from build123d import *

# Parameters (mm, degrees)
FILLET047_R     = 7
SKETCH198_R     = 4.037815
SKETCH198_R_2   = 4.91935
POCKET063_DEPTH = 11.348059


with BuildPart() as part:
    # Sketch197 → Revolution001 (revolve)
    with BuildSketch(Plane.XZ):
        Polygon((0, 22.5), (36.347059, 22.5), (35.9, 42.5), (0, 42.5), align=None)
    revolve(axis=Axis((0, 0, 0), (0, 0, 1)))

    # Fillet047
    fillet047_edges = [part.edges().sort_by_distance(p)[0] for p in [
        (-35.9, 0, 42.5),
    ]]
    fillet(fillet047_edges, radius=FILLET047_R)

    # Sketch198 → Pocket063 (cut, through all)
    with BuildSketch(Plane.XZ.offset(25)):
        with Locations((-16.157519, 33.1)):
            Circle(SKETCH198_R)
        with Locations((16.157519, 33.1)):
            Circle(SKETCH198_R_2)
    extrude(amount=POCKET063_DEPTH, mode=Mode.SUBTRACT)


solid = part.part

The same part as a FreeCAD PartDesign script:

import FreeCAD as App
import Part
import Sketcher
from FreeCAD import Vector
Q = App.Units.Quantity


def edges_at(feature, points):
    """Names of the edges that pass closest to the given points."""
    edges = feature.Shape.Edges
    near = lambda p: min(range(len(edges)), key=lambda i: edges[i].distToShape(Part.Vertex(*p))[0])
    return sorted({f"Edge{near(p) + 1}" for p in points})

doc = App.newDocument("Part")
body = doc.addObject("PartDesign::Body", "Body")

sketch1 = body.newObject("Sketcher::SketchObject", "Sketch")
sketch1.AttachmentSupport = (doc.getObject("XZ_Plane"), [""])
sketch1.MapMode = "FlatFace"
sketch1.addGeometry([
    Part.LineSegment(Vector(0, 22, 0), Vector(36, 22, 0)),
    Part.LineSegment(Vector(36, 22, 0), Vector(36, 42, 0)),
    Part.LineSegment(Vector(36, 42, 0), Vector(0, 42, 0)),
    Part.LineSegment(Vector(0, 42, 0), Vector(0, 22, 0)),
], False)
sketch1.addConstraint([
    Sketcher.Constraint("Coincident", 0, 2, 1, 1),
    Sketcher.Constraint("Coincident", 1, 2, 2, 1),
    Sketcher.Constraint("Coincident", 2, 2, 3, 1),
    Sketcher.Constraint("Coincident", 3, 2, 0, 1),
    Sketcher.Constraint("Horizontal", 0),
    Sketcher.Constraint("Horizontal", 2),
    Sketcher.Constraint("Vertical", 3),
    Sketcher.Constraint("PointOnObject", 2, 2, -2),
    Sketcher.Constraint("DistanceY", 3, 2, 3, 1, Q("20 mm")),
    Sketcher.Constraint("DistanceX", 2, 2, 2, 1, Q("35.9 mm")),
    Sketcher.Constraint("DistanceY", -1, 1, 0, 2, Q("22.5 mm")),
    Sketcher.Constraint("DistanceX", 0, 1, 0, 2, Q("36.347059 mm")),
])
revolution = body.newObject("PartDesign::Revolution", "Revolution")
revolution.Profile = sketch1
revolution.ReferenceAxis = (sketch1, ["V_Axis"])
revolution.Angle = 360
doc.recompute()

fillet = body.newObject("PartDesign::Fillet", "Fillet")
fillet.Base = (revolution, edges_at(revolution, [(-35.9, 0, 42.5)]))
fillet.Radius = 7

sketch2 = body.newObject("Sketcher::SketchObject", "Sketch001")
sketch2.AttachmentSupport = (doc.getObject("XZ_Plane"), [""])
sketch2.MapMode = "FlatFace"
sketch2.AttachmentOffset = App.Placement(Vector(0, 0, 25), App.Rotation())
sketch2.addGeometry([
    Part.Circle(Vector(-16.2, 33.1, 0), Vector(0, 0, 1), 4),
    Part.Circle(Vector(16.2, 33.1, 0), Vector(0, 0, 1), 4.9),
], False)
sketch2.addConstraint([
    Sketcher.Constraint("Symmetric", 0, 3, 1, 3, -2),
    Sketcher.Constraint("Diameter", 1, Q("9.8387 mm")),
    Sketcher.Constraint("DistanceY", -1, 1, 0, 3, Q("33.1 mm")),
    Sketcher.Constraint("Diameter", 0, Q("8.07563 mm")),
    Sketcher.Constraint("DistanceX", 0, 3, -1, 1, Q("16.157519 mm")),
])
pocket1 = body.newObject("PartDesign::Pocket", "Pocket")
pocket1.Profile = sketch2
pocket1.Type = "ThroughAll"
pocket1.Reversed = True

doc.recompute()
